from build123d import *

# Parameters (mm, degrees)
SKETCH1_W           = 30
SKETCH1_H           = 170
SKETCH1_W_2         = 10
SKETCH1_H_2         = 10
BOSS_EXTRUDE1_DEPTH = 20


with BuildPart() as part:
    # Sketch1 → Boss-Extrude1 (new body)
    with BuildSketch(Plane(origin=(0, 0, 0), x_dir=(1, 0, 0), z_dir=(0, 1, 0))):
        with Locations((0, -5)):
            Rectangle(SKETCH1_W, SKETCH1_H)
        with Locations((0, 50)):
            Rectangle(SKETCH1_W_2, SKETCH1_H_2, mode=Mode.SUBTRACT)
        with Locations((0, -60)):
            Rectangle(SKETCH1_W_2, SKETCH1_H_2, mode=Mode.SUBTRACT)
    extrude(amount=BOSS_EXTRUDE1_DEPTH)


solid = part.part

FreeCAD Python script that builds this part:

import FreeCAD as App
import Part
import Sketcher
Q = App.Units.Quantity

doc = App.newDocument("Part")
body = doc.addObject("PartDesign::Body", "Body")

sketch1 = body.newObject("Sketcher::SketchObject", "Sketch")
sketch1.AttachmentSupport = (doc.getObject("XZ_Plane"), [""])
sketch1.MapMode = "FlatFace"
sketch1.addGeometry([
    Part.LineSegment(App.Vector(-15, -80, 0), App.Vector(-15, 90, 0)),
    Part.LineSegment(App.Vector(-15, 90, 0), App.Vector(15, 90, 0)),
    Part.LineSegment(App.Vector(15, 90, 0), App.Vector(15, -80, 0)),
    Part.LineSegment(App.Vector(15, -80, 0), App.Vector(-15, -80, 0)),
    Part.LineSegment(App.Vector(5, 65, 0), App.Vector(-5, 65, 0)),
    Part.LineSegment(App.Vector(-5, 65, 0), App.Vector(-5, 55, 0)),
    Part.LineSegment(App.Vector(-5, 55, 0), App.Vector(5, 55, 0)),
    Part.LineSegment(App.Vector(5, 55, 0), App.Vector(5, 65, 0)),
    Part.LineSegment(App.Vector(5, -45, 0), App.Vector(-5, -45, 0)),
    Part.LineSegment(App.Vector(-5, -45, 0), App.Vector(-5, -55, 0)),
    Part.LineSegment(App.Vector(-5, -55, 0), App.Vector(5, -55, 0)),
    Part.LineSegment(App.Vector(5, -55, 0), App.Vector(5, -45, 0)),
], False)
sketch1.addConstraint([
    Sketcher.Constraint("Coincident", 0, 2, 1, 1),
    Sketcher.Constraint("Coincident", 1, 2, 2, 1),
    Sketcher.Constraint("Coincident", 2, 2, 3, 1),
    Sketcher.Constraint("Coincident", 3, 2, 0, 1),
    Sketcher.Constraint("Coincident", 4, 2, 5, 1),
    Sketcher.Constraint("Coincident", 5, 2, 6, 1),
    Sketcher.Constraint("Coincident", 6, 2, 7, 1),
    Sketcher.Constraint("Coincident", 7, 2, 4, 1),
    Sketcher.Constraint("Coincident", 8, 2, 9, 1),
    Sketcher.Constraint("Coincident", 9, 2, 10, 1),
    Sketcher.Constraint("Coincident", 10, 2, 11, 1),
    Sketcher.Constraint("Coincident", 11, 2, 8, 1),
    Sketcher.Constraint("Vertical", 0),
    Sketcher.Constraint("Horizontal", 1),
    Sketcher.Constraint("Vertical", 2),
    Sketcher.Constraint("Horizontal", 3),
    Sketcher.Constraint("Horizontal", 4),
    Sketcher.Constraint("Vertical", 5),
    Sketcher.Constraint("Horizontal", 6),
    Sketcher.Constraint("Vertical", 7),
    Sketcher.Constraint("Horizontal", 8),
    Sketcher.Constraint("Vertical", 9),
    Sketcher.Constraint("Horizontal", 10),
    Sketcher.Constraint("Vertical", 11),
    Sketcher.Constraint("Symmetric", 6, 2, 9, 2, -1, 1),
    Sketcher.Constraint("Vertical", 5, 2, 8, 2),
    Sketcher.Constraint("Vertical", 7, 2, 10, 2),
    Sketcher.Constraint("Equal", 10, 5),
    Sketcher.Constraint("Equal", 7, 9),
    Sketcher.Constraint("DistanceX", 1, 1, 1, 2, Q("30 mm")),
    Sketcher.Constraint("DistanceX", 4, 2, 4, 1, Q("10 mm")),
    Sketcher.Constraint("DistanceY", 0, 1, 0, 2, Q("170 mm")),
    Sketcher.Constraint("DistanceX", 0, 2, -1, 1, Q("15 mm")),
    Sketcher.Constraint("DistanceY", -1, 1, 0, 2, Q("90 mm")),
    Sketcher.Constraint("DistanceY", -1, 1, 4, 2, Q("65 mm")),
])
pad1 = body.newObject("PartDesign::Pad", "Pad")
pad1.Profile = sketch1
pad1.Length = 20
pad1.Reversed = True

doc.recompute()
